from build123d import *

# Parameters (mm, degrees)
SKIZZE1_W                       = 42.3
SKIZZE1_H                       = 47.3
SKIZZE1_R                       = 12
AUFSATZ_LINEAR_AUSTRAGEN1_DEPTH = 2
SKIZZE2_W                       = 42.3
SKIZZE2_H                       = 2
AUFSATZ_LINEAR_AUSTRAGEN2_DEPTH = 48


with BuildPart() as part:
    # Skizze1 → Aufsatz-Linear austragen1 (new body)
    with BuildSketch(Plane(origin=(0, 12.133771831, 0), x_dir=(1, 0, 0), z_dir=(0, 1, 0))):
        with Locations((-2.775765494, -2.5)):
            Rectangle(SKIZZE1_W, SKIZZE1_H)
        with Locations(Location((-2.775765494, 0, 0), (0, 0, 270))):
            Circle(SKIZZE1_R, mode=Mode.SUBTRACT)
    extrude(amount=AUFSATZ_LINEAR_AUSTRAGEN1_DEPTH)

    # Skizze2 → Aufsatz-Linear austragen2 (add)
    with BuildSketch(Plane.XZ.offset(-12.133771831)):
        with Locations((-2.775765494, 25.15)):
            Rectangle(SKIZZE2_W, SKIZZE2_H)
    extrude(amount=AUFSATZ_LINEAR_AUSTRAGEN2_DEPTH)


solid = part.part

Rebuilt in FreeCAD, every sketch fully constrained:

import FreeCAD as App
import Part
import Sketcher
Q = App.Units.Quantity

doc = App.newDocument("Part")
params = doc.addObject("Spreadsheet::Sheet", "Params")
for row, (alias, value) in enumerate([
    ("sketch1_diameter", "24 mm"),
    ("sketch1_width", "42.3 mm"),
    ("sketch1_height", "47.3 mm"),
    ("pad1_length", "2 mm"),
    ("sketch2_height", "2 mm"),
    ("sketch2_width", "42.3 mm"),
    ("pad2_length", "48 mm"),
], start=1):
    params.set(f"A{row}", alias)
    params.set(f"B{row}", "=" + value)
    params.setAlias(f"B{row}", alias)

body = doc.addObject("PartDesign::Body", "Body")

# Sketch on XZ plane
sketch1 = body.newObject("Sketcher::SketchObject", "Sketch")
sketch1.AttachmentSupport = (doc.getObject("XZ_Plane"), [""])
sketch1.MapMode = "FlatFace"
sketch1.AttachmentOffset = App.Placement(App.Vector(0, 0, -12.133772), App.Rotation())
sketch1.addGeometry([
    Part.LineSegment(App.Vector(-23.925765, -21.15, 0), App.Vector(-23.925765, 26.15, 0)),  # 0
    Part.LineSegment(App.Vector(-23.925765, 26.15, 0), App.Vector(18.374235, 26.15, 0)),  # 1
    Part.LineSegment(App.Vector(18.374235, 26.15, 0), App.Vector(18.374235, -21.15, 0)),  # 2
    Part.LineSegment(App.Vector(18.374235, -21.15, 0), App.Vector(-23.925765, -21.15, 0)),  # 3
    Part.Circle(App.Vector(-2.775765, 0, 0), App.Vector(0, 0, 1), 12),  # 4
], False)
sketch1.addConstraint([
    Sketcher.Constraint("Coincident", 0, 2, 1, 1),
    Sketcher.Constraint("Coincident", 1, 2, 2, 1),
    Sketcher.Constraint("Coincident", 2, 2, 3, 1),
    Sketcher.Constraint("Coincident", 3, 2, 0, 1),
    Sketcher.Constraint("Vertical", 0),
    Sketcher.Constraint("Horizontal", 1),
    Sketcher.Constraint("Vertical", 2),
    Sketcher.Constraint("Horizontal", 3),
    Sketcher.Constraint("PointOnObject", 4, 3, -1),
    Sketcher.Constraint("Diameter", 4, Q("24 mm")),
    Sketcher.Constraint("DistanceX", 1, 1, 1, 2, Q("42.3 mm")),
    Sketcher.Constraint("DistanceY", 0, 1, 0, 2, Q("47.3 mm")),
    Sketcher.Constraint("DistanceY", -1, 1, 0, 2, Q("26.15 mm")),
    Sketcher.Constraint("DistanceX", 0, 2, 4, 3, Q("21.15 mm")),
    Sketcher.Constraint("DistanceX", 4, 3, -1, 1, Q("2.775765 mm")),
])
sketch1.setExpression("Constraints[9]", "Params.sketch1_diameter")
sketch1.setExpression("Constraints[10]", "Params.sketch1_width")
sketch1.setExpression("Constraints[11]", "Params.sketch1_height")
pad1 = body.newObject("PartDesign::Pad", "Pad")
pad1.Profile = sketch1
pad1.setExpression("Length", "Params.pad1_length")
pad1.Reversed = True

# Sketch on XZ plane
sketch2 = body.newObject("Sketcher::SketchObject", "Sketch001")
sketch2.AttachmentSupport = (doc.getObject("XZ_Plane"), [""])
sketch2.MapMode = "FlatFace"
sketch2.AttachmentOffset = App.Placement(App.Vector(0, 0, -12.133772), App.Rotation())
sketch2.addGeometry([
    Part.LineSegment(App.Vector(-23.925765, 26.15, 0), App.Vector(-23.925765, 24.15, 0)),
    Part.LineSegment(App.Vector(-23.925765, 24.15, 0), App.Vector(18.374235, 24.15, 0)),
    Part.LineSegment(App.Vector(18.374235, 24.15, 0), App.Vector(18.374235, 26.15, 0)),
    Part.LineSegment(App.Vector(18.374235, 26.15, 0), App.Vector(-23.925765, 26.15, 0)),
], False)
sketch2.addConstraint([
    Sketcher.Constraint("Coincident", 0, 2, 1, 1),
    Sketcher.Constraint("Coincident", 1, 2, 2, 1),
    Sketcher.Constraint("Coincident", 2, 2, 3, 1),
    Sketcher.Constraint("Coincident", 3, 2, 0, 1),
    Sketcher.Constraint("Vertical", 0),
    Sketcher.Constraint("Horizontal", 1),
    Sketcher.Constraint("Vertical", 2),
    Sketcher.Constraint("Horizontal", 3),
    Sketcher.Constraint("DistanceY", 0, 2, 0, 1, Q("2 mm")),
    Sketcher.Constraint("DistanceX", 1, 1, 1, 2, Q("42.3 mm")),
    Sketcher.Constraint("DistanceY", -1, 1, 0, 2, Q("24.15 mm")),
    Sketcher.Constraint("DistanceX", 0, 2, -1, 1, Q("23.925765 mm")),
])
sketch2.setExpression("Constraints[8]", "Params.sketch2_height")
sketch2.setExpression("Constraints[9]", "Params.sketch2_width")
pad2 = body.newObject("PartDesign::Pad", "Pad001")
pad2.Profile = sketch2
pad2.setExpression("Length", "Params.pad2_length")

doc.recompute()
